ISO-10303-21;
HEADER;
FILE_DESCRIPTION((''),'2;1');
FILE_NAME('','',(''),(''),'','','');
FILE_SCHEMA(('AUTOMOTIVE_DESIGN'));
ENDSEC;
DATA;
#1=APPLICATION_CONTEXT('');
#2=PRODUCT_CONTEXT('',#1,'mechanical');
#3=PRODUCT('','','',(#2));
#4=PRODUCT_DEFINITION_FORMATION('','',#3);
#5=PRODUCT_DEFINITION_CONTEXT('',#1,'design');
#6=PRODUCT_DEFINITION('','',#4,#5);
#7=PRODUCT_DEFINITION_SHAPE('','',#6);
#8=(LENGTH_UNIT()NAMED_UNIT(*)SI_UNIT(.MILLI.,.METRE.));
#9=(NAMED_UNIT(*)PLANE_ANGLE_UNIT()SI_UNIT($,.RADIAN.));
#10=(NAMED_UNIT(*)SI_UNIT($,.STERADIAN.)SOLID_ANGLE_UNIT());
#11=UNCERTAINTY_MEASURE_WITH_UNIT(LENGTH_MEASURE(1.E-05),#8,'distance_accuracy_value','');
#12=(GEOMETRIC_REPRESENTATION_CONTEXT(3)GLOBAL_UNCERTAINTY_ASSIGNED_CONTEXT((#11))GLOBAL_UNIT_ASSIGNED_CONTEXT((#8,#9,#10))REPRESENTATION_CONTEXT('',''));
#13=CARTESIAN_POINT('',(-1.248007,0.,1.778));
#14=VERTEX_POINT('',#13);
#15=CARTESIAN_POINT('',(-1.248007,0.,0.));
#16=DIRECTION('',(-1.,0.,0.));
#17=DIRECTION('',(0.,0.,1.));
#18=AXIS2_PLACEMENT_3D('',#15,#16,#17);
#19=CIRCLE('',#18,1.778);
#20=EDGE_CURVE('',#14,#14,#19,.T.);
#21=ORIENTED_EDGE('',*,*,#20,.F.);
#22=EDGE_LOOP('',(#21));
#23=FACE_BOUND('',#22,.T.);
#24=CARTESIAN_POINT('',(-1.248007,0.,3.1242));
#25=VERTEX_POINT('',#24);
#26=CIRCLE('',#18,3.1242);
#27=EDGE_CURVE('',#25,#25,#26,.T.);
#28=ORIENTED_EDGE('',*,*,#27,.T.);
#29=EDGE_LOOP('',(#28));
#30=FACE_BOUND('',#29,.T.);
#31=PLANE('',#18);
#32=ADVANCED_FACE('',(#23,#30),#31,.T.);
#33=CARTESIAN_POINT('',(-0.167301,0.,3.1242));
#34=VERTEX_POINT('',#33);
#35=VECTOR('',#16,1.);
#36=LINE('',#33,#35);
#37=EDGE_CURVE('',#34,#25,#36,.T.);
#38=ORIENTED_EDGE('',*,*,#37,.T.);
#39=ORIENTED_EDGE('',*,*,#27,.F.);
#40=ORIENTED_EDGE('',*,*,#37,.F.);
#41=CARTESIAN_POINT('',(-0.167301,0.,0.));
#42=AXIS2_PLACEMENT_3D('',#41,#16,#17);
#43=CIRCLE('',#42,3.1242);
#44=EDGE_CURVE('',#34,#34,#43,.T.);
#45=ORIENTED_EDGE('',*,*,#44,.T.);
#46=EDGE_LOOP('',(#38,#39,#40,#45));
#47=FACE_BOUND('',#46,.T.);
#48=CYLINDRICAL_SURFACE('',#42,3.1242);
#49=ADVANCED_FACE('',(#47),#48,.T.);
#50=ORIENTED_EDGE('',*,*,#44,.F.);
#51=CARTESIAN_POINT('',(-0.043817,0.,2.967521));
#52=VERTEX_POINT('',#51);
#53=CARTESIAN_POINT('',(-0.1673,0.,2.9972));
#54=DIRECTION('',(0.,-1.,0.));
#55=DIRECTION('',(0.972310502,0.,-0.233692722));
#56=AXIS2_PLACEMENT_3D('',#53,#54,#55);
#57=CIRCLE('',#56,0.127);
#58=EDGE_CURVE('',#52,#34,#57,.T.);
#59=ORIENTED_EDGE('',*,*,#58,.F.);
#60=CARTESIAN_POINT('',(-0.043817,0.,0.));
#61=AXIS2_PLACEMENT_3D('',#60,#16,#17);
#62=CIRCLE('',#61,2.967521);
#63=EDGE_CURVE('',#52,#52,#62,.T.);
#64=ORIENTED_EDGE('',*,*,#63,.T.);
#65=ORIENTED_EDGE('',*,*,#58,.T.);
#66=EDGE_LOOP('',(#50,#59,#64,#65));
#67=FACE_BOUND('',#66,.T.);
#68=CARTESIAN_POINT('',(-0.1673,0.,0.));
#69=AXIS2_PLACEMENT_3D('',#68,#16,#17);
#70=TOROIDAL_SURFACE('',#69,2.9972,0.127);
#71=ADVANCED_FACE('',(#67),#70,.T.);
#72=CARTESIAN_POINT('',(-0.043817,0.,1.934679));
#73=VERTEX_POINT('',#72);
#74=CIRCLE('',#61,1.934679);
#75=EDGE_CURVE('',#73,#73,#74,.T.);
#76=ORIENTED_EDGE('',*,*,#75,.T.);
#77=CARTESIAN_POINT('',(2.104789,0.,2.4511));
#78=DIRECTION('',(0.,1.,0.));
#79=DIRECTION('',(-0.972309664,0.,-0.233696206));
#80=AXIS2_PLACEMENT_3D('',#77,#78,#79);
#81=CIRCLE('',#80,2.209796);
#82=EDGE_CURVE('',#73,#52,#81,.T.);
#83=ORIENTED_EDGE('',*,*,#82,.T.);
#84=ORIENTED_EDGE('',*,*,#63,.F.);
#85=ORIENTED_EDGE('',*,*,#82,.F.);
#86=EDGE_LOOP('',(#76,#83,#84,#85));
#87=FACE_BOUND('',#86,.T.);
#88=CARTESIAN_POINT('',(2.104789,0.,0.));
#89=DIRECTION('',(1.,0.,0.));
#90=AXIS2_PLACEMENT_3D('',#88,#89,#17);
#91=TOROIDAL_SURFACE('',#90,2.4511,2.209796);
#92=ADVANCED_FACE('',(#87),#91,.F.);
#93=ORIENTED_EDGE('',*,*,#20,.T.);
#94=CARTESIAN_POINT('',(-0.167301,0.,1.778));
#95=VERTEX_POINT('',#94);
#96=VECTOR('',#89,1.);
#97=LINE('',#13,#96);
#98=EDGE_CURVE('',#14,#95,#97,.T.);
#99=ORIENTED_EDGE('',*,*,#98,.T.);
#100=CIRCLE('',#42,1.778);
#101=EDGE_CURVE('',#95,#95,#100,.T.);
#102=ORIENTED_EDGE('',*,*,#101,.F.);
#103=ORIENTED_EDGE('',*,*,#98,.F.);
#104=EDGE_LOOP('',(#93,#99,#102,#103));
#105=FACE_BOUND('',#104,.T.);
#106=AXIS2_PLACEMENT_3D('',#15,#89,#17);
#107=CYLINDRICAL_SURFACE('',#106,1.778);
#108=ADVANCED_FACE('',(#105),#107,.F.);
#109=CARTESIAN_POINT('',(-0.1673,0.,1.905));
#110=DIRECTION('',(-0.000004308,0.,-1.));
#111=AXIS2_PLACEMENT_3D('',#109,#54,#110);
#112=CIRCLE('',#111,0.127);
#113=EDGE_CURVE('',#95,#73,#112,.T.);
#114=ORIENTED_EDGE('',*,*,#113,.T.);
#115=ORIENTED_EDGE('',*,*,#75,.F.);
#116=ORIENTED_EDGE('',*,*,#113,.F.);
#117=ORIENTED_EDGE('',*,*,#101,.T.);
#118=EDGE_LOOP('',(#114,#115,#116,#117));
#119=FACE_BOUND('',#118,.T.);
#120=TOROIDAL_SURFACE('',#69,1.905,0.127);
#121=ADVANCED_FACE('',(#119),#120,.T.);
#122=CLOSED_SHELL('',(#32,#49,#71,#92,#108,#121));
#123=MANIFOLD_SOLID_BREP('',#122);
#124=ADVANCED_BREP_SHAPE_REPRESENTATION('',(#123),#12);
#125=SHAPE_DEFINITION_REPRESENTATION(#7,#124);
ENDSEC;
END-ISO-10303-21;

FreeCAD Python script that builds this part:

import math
import FreeCAD as App
import Part
import Sketcher
Q = App.Units.Quantity

doc = App.newDocument("Part")
body = doc.addObject("PartDesign::Body", "Body")

sketch1 = body.newObject("Sketcher::SketchObject", "Sketch")
sketch1.AttachmentSupport = (doc.getObject("XZ_Plane"), [""])
sketch1.MapMode = "FlatFace"
sketch1.addGeometry([
    Part.ArcOfCircle(Part.Circle(App.Vector(-0.1673, 2.9972, 0), App.Vector(0, 0, 1), 0.127), math.radians(-13.514576), math.radians(90.000247)),
    Part.LineSegment(App.Vector(-0.167301, 3.1242, 0), App.Vector(-1.248007, 3.1242, 0)),
    Part.LineSegment(App.Vector(-1.248007, 3.1242, 0), App.Vector(-1.248007, 1.778, 0)),
    Part.LineSegment(App.Vector(-1.248007, 1.778, 0), App.Vector(-0.167301, 1.778, 0)),
    Part.ArcOfCircle(Part.Circle(App.Vector(-0.1673, 1.905, 0), App.Vector(0, 0, 1), 0.127), math.radians(-90.000247), math.radians(13.514576)),
    Part.ArcOfCircle(Part.Circle(App.Vector(2.104789, 2.4511, 0), App.Vector(0, 0, 1), 2.209796), math.radians(166.485219), math.radians(193.514781)),
], False)
sketch1.addConstraint([
    Sketcher.Constraint("Coincident", 0, 2, 1, 1),
    Sketcher.Constraint("Coincident", 1, 2, 2, 1),
    Sketcher.Constraint("Coincident", 2, 2, 3, 1),
    Sketcher.Constraint("Coincident", 3, 2, 4, 1),
    Sketcher.Constraint("Coincident", 4, 2, 5, 2),
    Sketcher.Constraint("Coincident", 5, 1, 0, 1),
    Sketcher.Constraint("Horizontal", 1),
    Sketcher.Constraint("Vertical", 2),
    Sketcher.Constraint("Horizontal", 3),
    Sketcher.Constraint("Equal", 0, 4),
    Sketcher.Constraint("Vertical", 0, 3, 4, 3),
    Sketcher.Constraint("Vertical", 4, 3, 0, 2),
    Sketcher.Constraint("Vertical", 0, 2, 3, 2),
    Sketcher.Constraint("Vertical", 4, 2, 5, 1),
    Sketcher.Constraint("Radius", 0, Q("0.005 in")),
    Sketcher.Constraint("Radius", 5, Q("0.0869999 in")),
    Sketcher.Constraint("DistanceY", 2, 2, 2, 1, Q("0.053 in")),
    Sketcher.Constraint("DistanceY", -1, 1, 2, 2, Q("0.07 in")),
    Sketcher.Constraint("DistanceX", 1, 2, 5, 3, Q("0.1319999 in")),
    Sketcher.Constraint("DistanceX", 0, 3, -1, 1, 0.1673),
    Sketcher.Constraint("DistanceY", -1, 1, 4, 2, 1.934679),
])
revolution = body.newObject("PartDesign::Revolution", "Revolution")
revolution.Profile = sketch1
revolution.ReferenceAxis = (sketch1, ["H_Axis"])
revolution.Angle = 360

doc.recompute()
